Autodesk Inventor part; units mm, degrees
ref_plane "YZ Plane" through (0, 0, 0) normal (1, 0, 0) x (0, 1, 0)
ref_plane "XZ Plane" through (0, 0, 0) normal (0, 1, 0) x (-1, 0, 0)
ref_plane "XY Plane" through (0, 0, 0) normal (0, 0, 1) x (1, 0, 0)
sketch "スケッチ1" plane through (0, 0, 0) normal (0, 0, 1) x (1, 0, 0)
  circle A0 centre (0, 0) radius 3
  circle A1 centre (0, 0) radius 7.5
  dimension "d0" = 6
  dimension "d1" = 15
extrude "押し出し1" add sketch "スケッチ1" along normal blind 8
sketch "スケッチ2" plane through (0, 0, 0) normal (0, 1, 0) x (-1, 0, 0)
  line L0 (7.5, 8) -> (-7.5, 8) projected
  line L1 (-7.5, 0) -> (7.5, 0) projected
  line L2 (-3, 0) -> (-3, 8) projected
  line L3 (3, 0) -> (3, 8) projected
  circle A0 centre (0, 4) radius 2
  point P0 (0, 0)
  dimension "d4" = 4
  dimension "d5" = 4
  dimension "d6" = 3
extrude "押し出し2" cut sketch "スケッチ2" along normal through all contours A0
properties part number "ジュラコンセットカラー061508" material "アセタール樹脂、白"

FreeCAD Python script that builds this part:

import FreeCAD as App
import Part
import Sketcher
from FreeCAD import Vector

doc = App.newDocument("Part")
body = doc.addObject("PartDesign::Body", "Body")

# Sketch on XY plane
sketch1 = body.newObject("Sketcher::SketchObject", "Sketch")
sketch1.AttachmentSupport = (doc.getObject("XY_Plane"), [""])
sketch1.MapMode = "FlatFace"
sketch1.addGeometry([
    Part.Circle(Vector(0, 0, 0), Vector(0, 0, 1), 7.5),
    Part.Circle(Vector(0, 0, 0), Vector(0, 0, 1), 3),
], False)
sketch1.addConstraint([
    Sketcher.Constraint("Coincident", 0, 3, -1, 1),
    Sketcher.Constraint("Coincident", 1, 3, -1, 1),
    Sketcher.Constraint("Diameter", 0, 15.0),
    Sketcher.Constraint("Diameter", 1, 6.0),
])
pad1 = body.newObject("PartDesign::Pad", "Pad")
pad1.Profile = sketch1
pad1.Length = 8

# Sketch on XZ plane
sketch2 = body.newObject("Sketcher::SketchObject", "Sketch001")
sketch2.AttachmentSupport = (doc.getObject("XZ_Plane"), [""])
sketch2.MapMode = "FlatFace"
sketch2.addGeometry(Part.Circle(Vector(0, 4, 0), Vector(0, 0, 1), 2), False)
sketch2.addConstraint([
    Sketcher.Constraint("PointOnObject", 0, 3, -2),
    Sketcher.Constraint("Diameter", 0, 4.0),
    Sketcher.Constraint("DistanceY", -1, 1, 0, 3, 4.0),
])
pocket1 = body.newObject("PartDesign::Pocket", "Pocket")
pocket1.Profile = sketch2
pocket1.Type = "ThroughAll"

doc.recompute()
